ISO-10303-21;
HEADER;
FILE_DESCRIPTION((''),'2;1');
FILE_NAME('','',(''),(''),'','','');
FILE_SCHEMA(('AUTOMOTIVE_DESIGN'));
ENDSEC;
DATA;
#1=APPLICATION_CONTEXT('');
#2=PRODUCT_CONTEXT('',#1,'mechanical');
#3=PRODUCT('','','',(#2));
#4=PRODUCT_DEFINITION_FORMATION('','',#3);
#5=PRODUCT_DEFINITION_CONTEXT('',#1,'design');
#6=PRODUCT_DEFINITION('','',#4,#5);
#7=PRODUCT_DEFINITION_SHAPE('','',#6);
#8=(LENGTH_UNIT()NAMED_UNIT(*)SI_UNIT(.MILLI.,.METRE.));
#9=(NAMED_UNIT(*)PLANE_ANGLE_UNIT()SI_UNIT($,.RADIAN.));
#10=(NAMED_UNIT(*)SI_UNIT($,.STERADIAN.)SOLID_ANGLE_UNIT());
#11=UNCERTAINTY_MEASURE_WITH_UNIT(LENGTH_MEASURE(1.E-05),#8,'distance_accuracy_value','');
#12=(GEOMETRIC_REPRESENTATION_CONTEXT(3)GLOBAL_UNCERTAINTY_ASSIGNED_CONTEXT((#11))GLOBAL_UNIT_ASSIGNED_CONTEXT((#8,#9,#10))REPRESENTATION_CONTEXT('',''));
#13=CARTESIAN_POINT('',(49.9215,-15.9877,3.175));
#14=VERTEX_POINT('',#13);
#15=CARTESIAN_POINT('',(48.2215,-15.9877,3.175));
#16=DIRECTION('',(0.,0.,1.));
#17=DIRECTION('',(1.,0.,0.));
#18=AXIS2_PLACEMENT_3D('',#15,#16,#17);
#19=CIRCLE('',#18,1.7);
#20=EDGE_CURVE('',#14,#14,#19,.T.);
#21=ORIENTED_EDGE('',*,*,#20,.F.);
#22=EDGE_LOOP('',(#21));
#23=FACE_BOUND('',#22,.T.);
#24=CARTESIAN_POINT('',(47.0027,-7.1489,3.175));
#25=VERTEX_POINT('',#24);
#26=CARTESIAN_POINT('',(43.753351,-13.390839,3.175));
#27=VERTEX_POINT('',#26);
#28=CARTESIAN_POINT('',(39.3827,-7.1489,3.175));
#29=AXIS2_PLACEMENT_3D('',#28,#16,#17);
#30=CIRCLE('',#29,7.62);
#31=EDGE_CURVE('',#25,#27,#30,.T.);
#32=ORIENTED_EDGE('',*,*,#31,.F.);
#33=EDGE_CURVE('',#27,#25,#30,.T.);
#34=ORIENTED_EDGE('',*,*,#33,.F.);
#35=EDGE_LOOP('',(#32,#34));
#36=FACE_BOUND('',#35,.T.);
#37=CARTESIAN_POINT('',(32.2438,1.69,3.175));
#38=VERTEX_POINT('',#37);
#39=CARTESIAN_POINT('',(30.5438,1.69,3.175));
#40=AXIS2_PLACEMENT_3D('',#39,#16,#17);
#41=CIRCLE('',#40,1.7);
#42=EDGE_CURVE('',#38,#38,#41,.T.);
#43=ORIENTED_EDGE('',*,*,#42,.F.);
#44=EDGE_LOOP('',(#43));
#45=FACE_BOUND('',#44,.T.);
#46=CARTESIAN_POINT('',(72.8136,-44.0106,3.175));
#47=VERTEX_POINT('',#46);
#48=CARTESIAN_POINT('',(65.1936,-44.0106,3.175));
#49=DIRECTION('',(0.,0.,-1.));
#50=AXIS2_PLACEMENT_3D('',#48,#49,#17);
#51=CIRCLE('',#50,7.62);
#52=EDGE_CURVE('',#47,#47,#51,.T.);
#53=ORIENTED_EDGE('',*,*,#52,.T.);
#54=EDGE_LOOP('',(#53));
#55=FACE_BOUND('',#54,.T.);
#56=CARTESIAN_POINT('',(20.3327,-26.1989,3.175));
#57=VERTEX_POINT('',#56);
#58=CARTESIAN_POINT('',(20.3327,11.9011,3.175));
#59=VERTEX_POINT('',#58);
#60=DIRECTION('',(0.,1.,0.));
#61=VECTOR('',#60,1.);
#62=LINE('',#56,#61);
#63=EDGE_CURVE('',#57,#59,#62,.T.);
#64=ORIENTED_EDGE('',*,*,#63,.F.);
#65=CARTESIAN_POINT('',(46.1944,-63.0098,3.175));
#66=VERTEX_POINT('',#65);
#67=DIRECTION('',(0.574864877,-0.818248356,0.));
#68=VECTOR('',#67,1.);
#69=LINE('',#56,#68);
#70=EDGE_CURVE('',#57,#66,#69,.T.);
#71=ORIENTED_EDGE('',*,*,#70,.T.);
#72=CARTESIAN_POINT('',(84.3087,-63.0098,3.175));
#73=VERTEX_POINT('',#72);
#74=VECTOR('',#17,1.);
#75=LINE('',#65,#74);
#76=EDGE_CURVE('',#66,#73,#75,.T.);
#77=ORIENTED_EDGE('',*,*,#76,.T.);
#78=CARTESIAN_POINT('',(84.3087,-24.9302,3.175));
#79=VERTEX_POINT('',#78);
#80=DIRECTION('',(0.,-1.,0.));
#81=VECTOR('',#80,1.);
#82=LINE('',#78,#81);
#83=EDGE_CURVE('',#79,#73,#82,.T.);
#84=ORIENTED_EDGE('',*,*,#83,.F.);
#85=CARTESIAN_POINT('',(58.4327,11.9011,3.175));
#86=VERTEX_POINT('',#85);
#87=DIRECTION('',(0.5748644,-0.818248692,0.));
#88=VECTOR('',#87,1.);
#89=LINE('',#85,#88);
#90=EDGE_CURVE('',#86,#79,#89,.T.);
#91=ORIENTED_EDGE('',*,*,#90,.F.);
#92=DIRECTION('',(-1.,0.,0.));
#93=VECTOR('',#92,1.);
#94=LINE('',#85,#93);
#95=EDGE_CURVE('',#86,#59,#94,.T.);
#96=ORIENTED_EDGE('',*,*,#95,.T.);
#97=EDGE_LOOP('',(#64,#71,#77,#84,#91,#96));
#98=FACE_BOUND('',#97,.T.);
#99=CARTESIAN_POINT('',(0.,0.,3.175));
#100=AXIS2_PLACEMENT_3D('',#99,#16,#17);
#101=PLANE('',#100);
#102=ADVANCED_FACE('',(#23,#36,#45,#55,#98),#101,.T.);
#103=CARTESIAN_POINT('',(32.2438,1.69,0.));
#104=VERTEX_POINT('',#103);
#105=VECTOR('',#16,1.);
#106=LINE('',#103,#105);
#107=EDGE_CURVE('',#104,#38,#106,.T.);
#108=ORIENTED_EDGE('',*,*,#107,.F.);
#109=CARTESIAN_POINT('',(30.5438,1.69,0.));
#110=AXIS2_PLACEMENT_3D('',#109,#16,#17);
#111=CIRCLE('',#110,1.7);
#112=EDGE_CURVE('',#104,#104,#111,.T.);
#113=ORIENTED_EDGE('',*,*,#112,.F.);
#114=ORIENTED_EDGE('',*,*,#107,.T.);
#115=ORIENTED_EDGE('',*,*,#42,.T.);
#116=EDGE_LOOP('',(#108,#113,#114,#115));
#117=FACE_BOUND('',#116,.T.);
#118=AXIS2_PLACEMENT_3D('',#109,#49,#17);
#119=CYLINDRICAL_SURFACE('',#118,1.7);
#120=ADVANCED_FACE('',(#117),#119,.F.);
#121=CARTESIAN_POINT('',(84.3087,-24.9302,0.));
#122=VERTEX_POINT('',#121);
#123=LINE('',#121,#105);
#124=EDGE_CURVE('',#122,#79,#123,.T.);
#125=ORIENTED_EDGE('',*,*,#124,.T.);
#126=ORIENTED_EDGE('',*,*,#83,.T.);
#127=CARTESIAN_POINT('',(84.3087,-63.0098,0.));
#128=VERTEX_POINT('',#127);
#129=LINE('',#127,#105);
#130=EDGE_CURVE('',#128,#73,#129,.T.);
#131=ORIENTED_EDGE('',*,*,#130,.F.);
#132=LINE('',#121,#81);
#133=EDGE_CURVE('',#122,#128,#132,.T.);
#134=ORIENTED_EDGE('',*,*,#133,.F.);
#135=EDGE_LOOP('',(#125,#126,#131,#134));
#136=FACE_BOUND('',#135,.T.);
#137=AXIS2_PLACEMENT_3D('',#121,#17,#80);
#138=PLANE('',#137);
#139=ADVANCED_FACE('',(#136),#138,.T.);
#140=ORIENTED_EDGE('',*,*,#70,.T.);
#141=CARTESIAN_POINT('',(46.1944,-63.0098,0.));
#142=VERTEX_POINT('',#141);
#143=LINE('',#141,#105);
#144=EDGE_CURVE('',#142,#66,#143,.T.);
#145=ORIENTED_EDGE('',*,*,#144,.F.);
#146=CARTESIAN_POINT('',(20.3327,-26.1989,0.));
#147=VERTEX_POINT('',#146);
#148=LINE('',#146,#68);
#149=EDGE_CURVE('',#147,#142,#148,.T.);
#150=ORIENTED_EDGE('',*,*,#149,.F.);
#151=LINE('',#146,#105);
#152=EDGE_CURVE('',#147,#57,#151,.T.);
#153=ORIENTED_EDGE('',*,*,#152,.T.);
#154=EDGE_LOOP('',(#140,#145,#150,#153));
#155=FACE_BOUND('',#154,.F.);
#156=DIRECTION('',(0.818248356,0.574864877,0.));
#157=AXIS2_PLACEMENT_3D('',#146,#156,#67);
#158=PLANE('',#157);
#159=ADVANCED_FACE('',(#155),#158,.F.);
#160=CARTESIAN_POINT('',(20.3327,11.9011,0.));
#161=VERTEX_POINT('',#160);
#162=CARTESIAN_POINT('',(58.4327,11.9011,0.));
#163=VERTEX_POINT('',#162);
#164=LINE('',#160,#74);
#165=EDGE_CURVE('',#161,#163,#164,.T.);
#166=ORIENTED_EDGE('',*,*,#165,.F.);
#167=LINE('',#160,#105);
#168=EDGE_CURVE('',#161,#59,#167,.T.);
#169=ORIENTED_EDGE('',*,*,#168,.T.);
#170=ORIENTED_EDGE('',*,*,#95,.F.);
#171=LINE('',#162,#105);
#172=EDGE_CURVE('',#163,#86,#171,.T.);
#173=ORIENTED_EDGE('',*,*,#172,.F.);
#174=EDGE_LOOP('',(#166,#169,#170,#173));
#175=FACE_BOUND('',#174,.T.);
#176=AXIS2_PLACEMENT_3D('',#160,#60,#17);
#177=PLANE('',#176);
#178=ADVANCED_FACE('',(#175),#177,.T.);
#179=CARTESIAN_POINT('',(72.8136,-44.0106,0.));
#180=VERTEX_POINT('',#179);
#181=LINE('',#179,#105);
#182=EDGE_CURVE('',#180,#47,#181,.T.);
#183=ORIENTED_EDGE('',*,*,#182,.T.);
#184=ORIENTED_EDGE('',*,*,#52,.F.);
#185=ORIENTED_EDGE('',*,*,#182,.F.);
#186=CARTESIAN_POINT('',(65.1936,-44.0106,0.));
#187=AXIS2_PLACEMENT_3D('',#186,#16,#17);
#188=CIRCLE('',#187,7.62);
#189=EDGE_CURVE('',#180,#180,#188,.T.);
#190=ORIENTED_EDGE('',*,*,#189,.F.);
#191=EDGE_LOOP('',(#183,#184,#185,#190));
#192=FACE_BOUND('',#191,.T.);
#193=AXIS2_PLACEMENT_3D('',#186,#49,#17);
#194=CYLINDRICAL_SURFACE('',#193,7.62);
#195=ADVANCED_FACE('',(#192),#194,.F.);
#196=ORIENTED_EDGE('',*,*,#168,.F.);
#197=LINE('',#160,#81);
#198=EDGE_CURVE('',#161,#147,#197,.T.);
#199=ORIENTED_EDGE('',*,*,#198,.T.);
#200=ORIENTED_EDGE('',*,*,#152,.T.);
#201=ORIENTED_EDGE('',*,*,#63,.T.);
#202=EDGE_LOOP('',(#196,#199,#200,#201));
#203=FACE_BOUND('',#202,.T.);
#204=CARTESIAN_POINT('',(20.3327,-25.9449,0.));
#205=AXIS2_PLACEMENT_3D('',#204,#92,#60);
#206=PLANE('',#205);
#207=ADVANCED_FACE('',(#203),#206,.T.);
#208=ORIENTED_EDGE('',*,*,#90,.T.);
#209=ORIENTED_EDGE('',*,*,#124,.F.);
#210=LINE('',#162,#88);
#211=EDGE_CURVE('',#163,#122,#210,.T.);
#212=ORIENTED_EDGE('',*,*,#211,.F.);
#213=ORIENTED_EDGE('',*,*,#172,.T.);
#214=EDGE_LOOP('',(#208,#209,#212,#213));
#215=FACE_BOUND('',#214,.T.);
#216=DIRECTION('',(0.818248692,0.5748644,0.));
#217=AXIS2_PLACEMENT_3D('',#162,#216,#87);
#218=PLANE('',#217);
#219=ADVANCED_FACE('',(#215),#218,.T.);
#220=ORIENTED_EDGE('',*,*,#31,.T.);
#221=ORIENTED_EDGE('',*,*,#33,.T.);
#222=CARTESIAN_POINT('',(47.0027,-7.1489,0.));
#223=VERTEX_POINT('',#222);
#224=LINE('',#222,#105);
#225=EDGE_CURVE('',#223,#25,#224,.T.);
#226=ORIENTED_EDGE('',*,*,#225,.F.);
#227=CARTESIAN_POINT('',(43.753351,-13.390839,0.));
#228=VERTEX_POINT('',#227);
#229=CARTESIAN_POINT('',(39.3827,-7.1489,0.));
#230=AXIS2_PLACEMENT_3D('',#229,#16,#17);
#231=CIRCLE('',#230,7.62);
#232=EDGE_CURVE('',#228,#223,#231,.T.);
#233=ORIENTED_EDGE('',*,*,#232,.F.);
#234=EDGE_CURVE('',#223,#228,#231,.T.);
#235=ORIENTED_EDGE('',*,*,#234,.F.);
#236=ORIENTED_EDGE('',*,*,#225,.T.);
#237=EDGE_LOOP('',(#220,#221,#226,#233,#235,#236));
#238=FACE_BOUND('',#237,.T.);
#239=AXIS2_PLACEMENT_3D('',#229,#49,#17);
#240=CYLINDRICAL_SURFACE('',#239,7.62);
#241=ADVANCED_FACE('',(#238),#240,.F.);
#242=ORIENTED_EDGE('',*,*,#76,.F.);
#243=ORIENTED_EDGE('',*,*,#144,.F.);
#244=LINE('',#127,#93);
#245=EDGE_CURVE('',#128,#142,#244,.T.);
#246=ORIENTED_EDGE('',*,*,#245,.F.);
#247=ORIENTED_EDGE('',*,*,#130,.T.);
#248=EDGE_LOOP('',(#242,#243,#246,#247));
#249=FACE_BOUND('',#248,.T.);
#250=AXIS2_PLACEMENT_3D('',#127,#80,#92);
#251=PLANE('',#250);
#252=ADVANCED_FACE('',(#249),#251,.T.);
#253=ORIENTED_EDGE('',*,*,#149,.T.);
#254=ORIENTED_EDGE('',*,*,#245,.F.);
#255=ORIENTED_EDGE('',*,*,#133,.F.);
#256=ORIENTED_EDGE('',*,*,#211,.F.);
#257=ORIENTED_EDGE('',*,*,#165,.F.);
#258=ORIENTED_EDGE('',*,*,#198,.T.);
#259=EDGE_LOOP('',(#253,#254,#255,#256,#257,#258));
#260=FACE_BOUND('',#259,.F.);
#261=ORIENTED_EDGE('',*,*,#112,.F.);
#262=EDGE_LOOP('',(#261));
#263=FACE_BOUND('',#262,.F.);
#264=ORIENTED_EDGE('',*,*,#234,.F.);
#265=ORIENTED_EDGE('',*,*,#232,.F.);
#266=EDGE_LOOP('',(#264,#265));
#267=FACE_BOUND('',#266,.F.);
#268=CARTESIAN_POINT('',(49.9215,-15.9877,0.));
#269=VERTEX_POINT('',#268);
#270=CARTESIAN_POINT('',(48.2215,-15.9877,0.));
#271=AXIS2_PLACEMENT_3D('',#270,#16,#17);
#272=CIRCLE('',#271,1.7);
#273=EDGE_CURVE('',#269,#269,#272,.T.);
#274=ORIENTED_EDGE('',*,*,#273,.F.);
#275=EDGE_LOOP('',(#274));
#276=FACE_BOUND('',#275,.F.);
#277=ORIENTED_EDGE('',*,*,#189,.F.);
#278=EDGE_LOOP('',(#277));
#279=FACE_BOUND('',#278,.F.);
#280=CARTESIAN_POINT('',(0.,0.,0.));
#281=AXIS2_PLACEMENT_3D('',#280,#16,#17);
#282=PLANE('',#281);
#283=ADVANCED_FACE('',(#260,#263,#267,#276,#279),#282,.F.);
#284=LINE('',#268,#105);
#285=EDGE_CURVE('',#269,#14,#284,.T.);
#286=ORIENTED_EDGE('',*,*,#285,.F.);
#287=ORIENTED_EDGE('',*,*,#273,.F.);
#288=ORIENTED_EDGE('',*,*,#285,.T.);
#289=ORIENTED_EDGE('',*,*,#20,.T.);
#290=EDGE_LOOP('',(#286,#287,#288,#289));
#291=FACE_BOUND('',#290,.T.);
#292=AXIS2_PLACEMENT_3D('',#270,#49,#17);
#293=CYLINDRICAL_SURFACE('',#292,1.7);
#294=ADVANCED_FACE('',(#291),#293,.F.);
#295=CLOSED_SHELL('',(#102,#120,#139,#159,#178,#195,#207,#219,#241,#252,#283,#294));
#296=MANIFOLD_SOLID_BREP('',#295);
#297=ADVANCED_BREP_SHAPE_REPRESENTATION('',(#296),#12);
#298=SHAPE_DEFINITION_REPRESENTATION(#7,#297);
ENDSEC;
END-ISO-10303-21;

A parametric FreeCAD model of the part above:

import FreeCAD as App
import Part
import Sketcher

V = App.Vector
Q = App.Units.Quantity

doc = App.newDocument("Part")
params = doc.addObject("Spreadsheet::Sheet", "Params")
for row, (alias, value) in enumerate([
    ("sketch1_diameter", "0.6 in"),
    ("sketch1_width", "1.5 in"),
    ("pad1_length", "0.125 in"),
], start=1):
    params.set(f"A{row}", alias)
    params.set(f"B{row}", "=" + value)
    params.setAlias(f"B{row}", alias)

body = doc.addObject("PartDesign::Body", "Body")

# Sketch on XY plane
sketch1 = body.newObject("Sketcher::SketchObject", "Sketch")
sketch1.AttachmentSupport = (doc.getObject("XY_Plane"), [""])
sketch1.MapMode = "FlatFace"
sketch1.addGeometry([
    Part.LineSegment(V(20.3, -26.2, 0), V(46.2, -63, 0)),  # 0
    Part.LineSegment(V(46.2, -63, 0), V(84.3, -63, 0)),  # 1
    Part.LineSegment(V(84.3, -63, 0), V(84.3, -24.9, 0)),  # 2
    Part.LineSegment(V(84.3, -24.9, 0), V(58.4, 11.9, 0)),  # 3
    Part.LineSegment(V(58.4, 11.9, 0), V(20.3, 11.9, 0)),  # 4
    Part.LineSegment(V(20.3, 11.9, 0), V(20.3, -26.2, 0)),  # 5
    Part.Circle(V(48.2, -16, 0), V(0, 0, 1), 1.7),  # 6
    Part.Circle(V(30.5, 1.7, 0), V(0, 0, 1), 1.7),  # 7
    Part.Circle(V(39.4, -7.1, 0), V(0, 0, 1), 7.6),  # 8
    Part.Circle(V(65.2, -44, 0), V(0, 0, 1), 7.6),  # 9
], False)
sketch1.addConstraint([
    Sketcher.Constraint("Coincident", 0, 2, 1, 1),
    Sketcher.Constraint("Coincident", 1, 2, 2, 1),
    Sketcher.Constraint("Coincident", 2, 2, 3, 1),
    Sketcher.Constraint("Coincident", 3, 2, 4, 1),
    Sketcher.Constraint("Coincident", 4, 2, 5, 1),
    Sketcher.Constraint("Coincident", 5, 2, 0, 1),
    Sketcher.Constraint("Horizontal", 1),
    Sketcher.Constraint("Vertical", 2),
    Sketcher.Constraint("Horizontal", 4),
    Sketcher.Constraint("Vertical", 5),
    Sketcher.Constraint("Equal", 6, 7),
    Sketcher.Constraint("Equal", 8, 9),
    Sketcher.Constraint("Parallel", 0, 3),
    Sketcher.Constraint("Equal", 4, 5),
    Sketcher.Constraint("Diameter", 8, Q("0.6 in")),
    Sketcher.Constraint("DistanceX", 4, 2, 4, 1, Q("1.5 in")),
    Sketcher.Constraint("DistanceX", 8, 3, 3, 2, Q("0.75 in")),
    Sketcher.Constraint("DistanceY", 8, 3, 3, 2, Q("0.75 in")),
    Sketcher.Constraint("DistanceX", 7, 3, 3, 2, Q("1.098 in")),
    Sketcher.Constraint("DistanceY", 7, 3, 3, 2, Q("0.402 in")),
    Sketcher.Constraint("Diameter", 6, Q("3.4 mm")),
    Sketcher.Constraint("Angle", 0, Q("-54.9098 deg")),
    Sketcher.Constraint("DistanceX", 6, 3, 3, 2, Q("10.2112 mm")),
    Sketcher.Constraint("DistanceY", 6, 3, 3, 2, Q("27.8888 mm")),
    Sketcher.Constraint("DistanceY", 2, 1, 2, 2, Q("1.4992 in")),
    Sketcher.Constraint("DistanceX", 0, 2, 9, 3, Q("0.748 in")),
    Sketcher.Constraint("DistanceY", 0, 2, 9, 3, Q("0.748 in")),
    Sketcher.Constraint("DistanceX", -1, 1, 7, 3, Q("1.2025 in")),
    Sketcher.Constraint("DistanceY", 9, 3, -1, 1, Q("1.7327 in")),
    Sketcher.Constraint("DistanceX", 6, 3, 9, 3, Q("0.6682 in")),
])
sketch1.setExpression("Constraints[14]", "Params.sketch1_diameter")
sketch1.setExpression("Constraints[15]", "Params.sketch1_width")
pad1 = body.newObject("PartDesign::Pad", "Pad")
pad1.Profile = sketch1
pad1.setExpression("Length", "Params.pad1_length")

doc.recompute()
